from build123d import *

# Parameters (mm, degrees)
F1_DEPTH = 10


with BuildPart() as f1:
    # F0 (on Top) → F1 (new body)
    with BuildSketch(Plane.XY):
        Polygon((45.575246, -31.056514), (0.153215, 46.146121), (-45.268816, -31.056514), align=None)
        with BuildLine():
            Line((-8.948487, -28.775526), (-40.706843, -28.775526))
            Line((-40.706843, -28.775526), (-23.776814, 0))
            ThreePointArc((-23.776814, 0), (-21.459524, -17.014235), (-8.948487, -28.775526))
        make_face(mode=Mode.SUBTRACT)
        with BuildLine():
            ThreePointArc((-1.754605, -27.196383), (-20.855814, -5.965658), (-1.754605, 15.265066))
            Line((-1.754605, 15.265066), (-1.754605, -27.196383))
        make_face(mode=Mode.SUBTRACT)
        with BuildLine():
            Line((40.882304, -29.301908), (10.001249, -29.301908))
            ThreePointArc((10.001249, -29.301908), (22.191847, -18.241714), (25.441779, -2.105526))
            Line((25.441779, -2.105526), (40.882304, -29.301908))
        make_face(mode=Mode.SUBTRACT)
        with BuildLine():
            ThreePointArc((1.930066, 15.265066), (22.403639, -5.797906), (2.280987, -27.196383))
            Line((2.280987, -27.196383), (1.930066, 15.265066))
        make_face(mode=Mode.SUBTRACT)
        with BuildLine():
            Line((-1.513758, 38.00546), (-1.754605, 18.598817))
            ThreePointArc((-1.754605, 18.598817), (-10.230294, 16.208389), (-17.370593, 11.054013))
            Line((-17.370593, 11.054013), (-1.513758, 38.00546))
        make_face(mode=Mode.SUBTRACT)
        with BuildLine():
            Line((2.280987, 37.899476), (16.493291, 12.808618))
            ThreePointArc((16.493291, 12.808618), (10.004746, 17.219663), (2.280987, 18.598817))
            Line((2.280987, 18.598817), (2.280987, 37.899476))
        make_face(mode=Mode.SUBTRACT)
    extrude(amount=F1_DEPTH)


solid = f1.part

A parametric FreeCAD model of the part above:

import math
import FreeCAD as App
import Part
import Sketcher
from FreeCAD import Vector
Q = App.Units.Quantity


def add_polygon(sketch, points):
    """Adds a closed chain of lines whose ends are joined by coincident constraints."""
    first, n = sketch.GeometryCount, len(points)
    for a, b in zip(points, points[1:] + points[:1]):
        sketch.addGeometry(Part.LineSegment(App.Vector(*a, 0), App.Vector(*b, 0)), False)
    for i in range(n):
        sketch.addConstraint(Sketcher.Constraint("Coincident", first + i, 2, first + (i + 1) % n, 1))

doc = App.newDocument("Part")
params = doc.addObject("Spreadsheet::Sheet", "Params")
for row, (alias, value) in enumerate([
    ("pad1_length", "10 mm"),
], start=1):
    params.set(f"A{row}", alias)
    params.set(f"B{row}", "=" + value)
    params.setAlias(f"B{row}", alias)

body = doc.addObject("PartDesign::Body", "Body")

# Sketch on XY plane
sketch1 = body.newObject("Sketcher::SketchObject", "Sketch")
sketch1.AttachmentSupport = (doc.getObject("XY_Plane"), [""])
sketch1.MapMode = "FlatFace"
add_polygon(sketch1, [(45.575246, -31.056514), (0.153215, 46.146121), (-45.268816, -31.056514)])  # lines 0-2
sketch1.addGeometry(Part.ArcOfCircle(Part.Circle(Vector(1.396236, -5.236424, 0), Vector(0, 0, 1), 25.711916), math.radians(168.249079), math.radians(246.275963)), False)  # 3
sketch1.addGeometry(Part.LineSegment(Vector(-8.948487, -28.775526, 0), Vector(-40.706843, -28.775526, 0)), False)  # 4
sketch1.addGeometry(Part.LineSegment(Vector(-40.706843, -28.775526, 0), Vector(-23.776814, 0, 0)), False)  # 5
sketch1.addGeometry(Part.LineSegment(Vector(-1.754605, 15.265066, 0), Vector(-1.754605, -27.196383, 0)), False)  # 6
sketch1.addGeometry(Part.ArcOfCircle(Part.Circle(Vector(0.493616, -5.965658, 0), Vector(0, 0, 1), 21.34943), math.radians(96.044791), math.radians(263.955209)), False)  # 7
sketch1.addGeometry(Part.LineSegment(Vector(25.441779, -2.105526, 0), Vector(40.882304, -29.301908, 0)), False)  # 8
sketch1.addGeometry(Part.LineSegment(Vector(40.882304, -29.301908, 0), Vector(10.001249, -29.301908, 0)), False)  # 9
sketch1.addGeometry(Part.ArcOfCircle(Part.Circle(Vector(-0.725311, -5.230678, 0), Vector(0, 0, 1), 26.353049), math.radians(-65.981413), math.radians(6.810613)), False)  # 10
sketch1.addGeometry(Part.LineSegment(Vector(2.280987, -27.196383, 0), Vector(1.930066, 15.265066, 0)), False)  # 11
sketch1.addGeometry(Part.ArcOfCircle(Part.Circle(Vector(1.15149, -5.973543, 0), Vector(0, 0, 1), 21.252875), math.radians(-86.953545), math.radians(87.900561)), False)  # 12
sketch1.addGeometry(Part.LineSegment(Vector(-17.370593, 11.054013, 0), Vector(-1.513758, 38.00546, 0)), False)  # 13
sketch1.addGeometry(Part.LineSegment(Vector(-1.513758, 38.00546, 0), Vector(-1.754605, 18.598817, 0)), False)  # 14
sketch1.addGeometry(Part.ArcOfCircle(Part.Circle(Vector(0.760373, -6.539734, 0), Vector(0, 0, 1), 25.264043), math.radians(95.713127), math.radians(135.861534)), False)  # 15
sketch1.addGeometry(Part.LineSegment(Vector(2.280987, 18.598817, 0), Vector(2.280987, 37.899476, 0)), False)  # 16
sketch1.addGeometry(Part.LineSegment(Vector(2.280987, 37.899476, 0), Vector(16.493291, 12.808618, 0)), False)  # 17
sketch1.addGeometry(Part.ArcOfCircle(Part.Circle(Vector(2.910402, -0.193725, 0), Vector(0, 0, 1), 18.803079), math.radians(43.749021), math.radians(91.91828)), False)  # 18
sketch1.addConstraint([
    Sketcher.Constraint("Coincident", 3, 2, 4, 1),
    Sketcher.Constraint("Coincident", 4, 2, 5, 1),
    Sketcher.Constraint("Coincident", 5, 2, 3, 1),
    Sketcher.Constraint("Coincident", 6, 1, 7, 1),
    Sketcher.Constraint("Coincident", 7, 2, 6, 2),
    Sketcher.Constraint("Coincident", 8, 2, 9, 1),
    Sketcher.Constraint("Coincident", 9, 2, 10, 1),
    Sketcher.Constraint("Coincident", 10, 2, 8, 1),
    Sketcher.Constraint("Coincident", 11, 1, 12, 1),
    Sketcher.Constraint("Coincident", 12, 2, 11, 2),
    Sketcher.Constraint("Coincident", 13, 2, 14, 1),
    Sketcher.Constraint("Coincident", 14, 2, 15, 1),
    Sketcher.Constraint("Coincident", 15, 2, 13, 1),
    Sketcher.Constraint("Coincident", 16, 2, 17, 1),
    Sketcher.Constraint("Coincident", 17, 2, 18, 1),
    Sketcher.Constraint("Coincident", 18, 2, 16, 1),
    Sketcher.Constraint("Horizontal", 2),
    Sketcher.Constraint("Horizontal", 4),
    Sketcher.Constraint("Vertical", 6),
    Sketcher.Constraint("Horizontal", 9),
    Sketcher.Constraint("Vertical", 16),
    Sketcher.Constraint("PointOnObject", 5, 2, -1),
    Sketcher.Constraint("Parallel", 1, 5),
    Sketcher.Constraint("Parallel", 5, 13),
    Sketcher.Constraint("Horizontal", 7, 2, 11, 1),
    Sketcher.Constraint("Horizontal", 6, 1, 12, 2),
    Sketcher.Constraint("Horizontal", 14, 2, 18, 2),
    Sketcher.Constraint("Vertical", 7, 2, 14, 2),
    Sketcher.Constraint("Vertical", 11, 1, 16, 2),
    Sketcher.Constraint("Equal", 0, 1),
    Sketcher.Constraint("Radius", 7, Q("21.34943 mm")),
    Sketcher.Constraint("Radius", 10, Q("26.353049 mm")),
    Sketcher.Constraint("Radius", 18, Q("18.803079 mm")),
    Sketcher.Constraint("Radius", 3, Q("25.711916 mm")),
    Sketcher.Constraint("Radius", 12, Q("21.252875 mm")),
    Sketcher.Constraint("Radius", 15, Q("25.264043 mm")),
    Sketcher.Constraint("Distance", 11, Q("42.462899 mm")),
    Sketcher.Constraint("DistanceY", 6, 2, 6, 1, Q("42.461449 mm")),
    Sketcher.Constraint("DistanceY", 16, 1, 16, 2, Q("19.300659 mm")),
    Sketcher.Constraint("DistanceX", 10, 3, 12, 3, Q("1.876801 mm")),
    Sketcher.Constraint("DistanceY", 3, 3, 18, 3, Q("5.0427 mm")),
    Sketcher.Constraint("DistanceY", 10, 3, 0, 2, Q("51.376799 mm")),
    Sketcher.Constraint("DistanceX", 0, 2, 7, 3, Q("0.340401 mm")),
    Sketcher.Constraint("DistanceY", 3, 2, 3, 3, Q("23.539102 mm")),
    Sketcher.Constraint("DistanceY", 10, 2, 18, 3, Q("1.911801 mm")),
    Sketcher.Constraint("DistanceY", 17, 2, 14, 2, Q("5.790199 mm")),
    Sketcher.Constraint("Distance", 8, Q("31.273839 mm")),
    Sketcher.Constraint("Distance", 13, Q("31.270109 mm")),
    Sketcher.Constraint("Distance", 17, Q("28.836448 mm")),
    Sketcher.Constraint("DistanceX", 2, 1, 2, 2, Q("90.844062 mm")),
    Sketcher.Constraint("DistanceX", 4, 2, 4, 1, Q("31.758356 mm")),
    Sketcher.Constraint("DistanceX", 9, 2, 9, 1, Q("30.881055 mm")),
    Sketcher.Constraint("DistanceY", 7, 3, -1, 1, Q("5.965658 mm")),
    Sketcher.Constraint("DistanceX", 10, 3, -1, 1, Q("0.725311 mm")),
    Sketcher.Constraint("DistanceY", 10, 3, -1, 1, Q("5.230678 mm")),
    Sketcher.Constraint("DistanceY", 8, 2, -1, 1, Q("29.301908 mm")),
    Sketcher.Constraint("DistanceY", -1, 1, 13, 2, Q("38.00546 mm")),
    Sketcher.Constraint("DistanceX", 7, 3, 3, 3, Q("0.90262 mm")),
    Sketcher.Constraint("DistanceY", 15, 3, 12, 3, Q("0.566191 mm")),
    Sketcher.Constraint("DistanceX", 15, 3, 18, 3, Q("2.150029 mm")),
])
pad1 = body.newObject("PartDesign::Pad", "Pad")
pad1.Profile = sketch1
pad1.setExpression("Length", "Params.pad1_length")

doc.recompute()
